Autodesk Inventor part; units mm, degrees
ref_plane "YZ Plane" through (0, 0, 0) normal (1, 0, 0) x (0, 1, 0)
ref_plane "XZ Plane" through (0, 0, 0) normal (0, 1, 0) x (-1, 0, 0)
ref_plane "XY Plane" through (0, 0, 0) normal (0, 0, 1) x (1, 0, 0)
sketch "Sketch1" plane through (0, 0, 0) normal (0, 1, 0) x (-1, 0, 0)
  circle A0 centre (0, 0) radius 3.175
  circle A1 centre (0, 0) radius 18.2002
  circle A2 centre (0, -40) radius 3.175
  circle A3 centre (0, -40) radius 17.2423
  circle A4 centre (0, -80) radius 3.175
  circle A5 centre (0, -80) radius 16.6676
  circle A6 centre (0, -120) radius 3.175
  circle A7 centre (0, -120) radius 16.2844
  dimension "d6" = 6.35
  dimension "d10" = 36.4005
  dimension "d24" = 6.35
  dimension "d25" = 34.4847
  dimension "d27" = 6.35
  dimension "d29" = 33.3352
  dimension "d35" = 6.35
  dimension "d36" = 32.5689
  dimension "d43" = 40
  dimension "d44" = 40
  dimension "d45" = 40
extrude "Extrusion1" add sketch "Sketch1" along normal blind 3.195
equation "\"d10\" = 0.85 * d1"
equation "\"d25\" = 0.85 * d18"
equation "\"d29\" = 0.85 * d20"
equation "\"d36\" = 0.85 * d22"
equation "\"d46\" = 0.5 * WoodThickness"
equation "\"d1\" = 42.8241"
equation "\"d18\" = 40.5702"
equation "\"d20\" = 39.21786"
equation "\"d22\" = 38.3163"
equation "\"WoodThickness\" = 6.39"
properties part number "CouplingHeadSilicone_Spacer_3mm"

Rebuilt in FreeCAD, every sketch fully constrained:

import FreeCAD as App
import Part
import Sketcher
Q = App.Units.Quantity

doc = App.newDocument("Part")
params = doc.addObject("Spreadsheet::Sheet", "Params")
for row, (alias, value) in enumerate([
    ("sketch1_diameter", "0.25 in"),
    ("pad1_length", "3.195 mm"),
], start=1):
    params.set(f"A{row}", alias)
    params.set(f"B{row}", "=" + value)
    params.setAlias(f"B{row}", alias)

body = doc.addObject("PartDesign::Body", "Body")
body.AllowCompound = True

# Sketch on XZ plane
sketch1 = body.newObject("Sketcher::SketchObject", "Sketch")
sketch1.AttachmentSupport = (doc.getObject("XZ_Plane"), [""])
sketch1.MapMode = "FlatFace"
sketch1.addGeometry([
    Part.Circle(App.Vector(0, 0, 0), App.Vector(0, 0, 1), 18.2),  # 0
    Part.Circle(App.Vector(0, 0, 0), App.Vector(0, 0, 1), 3.2),  # 1
    Part.Circle(App.Vector(0, -40, 0), App.Vector(0, 0, 1), 17.2),  # 2
    Part.Circle(App.Vector(0, -40, 0), App.Vector(0, 0, 1), 3.2),  # 3
    Part.Circle(App.Vector(0, -80, 0), App.Vector(0, 0, 1), 16.7),  # 4
    Part.Circle(App.Vector(0, -80, 0), App.Vector(0, 0, 1), 3.2),  # 5
    Part.Circle(App.Vector(0, -120, 0), App.Vector(0, 0, 1), 16.3),  # 6
    Part.Circle(App.Vector(0, -120, 0), App.Vector(0, 0, 1), 3.2),  # 7
], False)
sketch1.addConstraint([
    Sketcher.Constraint("Coincident", 0, 3, -1, 1),
    Sketcher.Constraint("Coincident", 1, 3, -1, 1),
    Sketcher.Constraint("Coincident", 3, 3, 2, 3),
    Sketcher.Constraint("Coincident", 5, 3, 4, 3),
    Sketcher.Constraint("Coincident", 7, 3, 6, 3),
    Sketcher.Constraint("Equal", 1, 3),
    Sketcher.Constraint("Equal", 3, 5),
    Sketcher.Constraint("Equal", 5, 7),
    Sketcher.Constraint("PointOnObject", 2, 3, -2),
    Sketcher.Constraint("PointOnObject", 4, 3, -2),
    Sketcher.Constraint("PointOnObject", 6, 3, -2),
    Sketcher.Constraint("Diameter", 1, Q("0.25 in")),
    Sketcher.Constraint("Diameter", 4, Q("1.3124 in")),
    Sketcher.Constraint("Diameter", 0, Q("36.4004 mm")),
    Sketcher.Constraint("Diameter", 2, Q("34.4846 mm")),
    Sketcher.Constraint("Diameter", 6, Q("32.5688 mm")),
    Sketcher.Constraint("DistanceY", 2, 3, -1, 1, Q("1.5748 in")),
    Sketcher.Constraint("DistanceY", 4, 3, 2, 3, Q("1.5748 in")),
    Sketcher.Constraint("DistanceY", 6, 3, 4, 3, Q("1.5748 in")),
])
sketch1.setExpression("Constraints[11]", "Params.sketch1_diameter")
pad1 = body.newObject("PartDesign::Pad", "Pad")
pad1.Profile = sketch1
pad1.setExpression("Length", "Params.pad1_length")
pad1.Reversed = True

doc.recompute()
